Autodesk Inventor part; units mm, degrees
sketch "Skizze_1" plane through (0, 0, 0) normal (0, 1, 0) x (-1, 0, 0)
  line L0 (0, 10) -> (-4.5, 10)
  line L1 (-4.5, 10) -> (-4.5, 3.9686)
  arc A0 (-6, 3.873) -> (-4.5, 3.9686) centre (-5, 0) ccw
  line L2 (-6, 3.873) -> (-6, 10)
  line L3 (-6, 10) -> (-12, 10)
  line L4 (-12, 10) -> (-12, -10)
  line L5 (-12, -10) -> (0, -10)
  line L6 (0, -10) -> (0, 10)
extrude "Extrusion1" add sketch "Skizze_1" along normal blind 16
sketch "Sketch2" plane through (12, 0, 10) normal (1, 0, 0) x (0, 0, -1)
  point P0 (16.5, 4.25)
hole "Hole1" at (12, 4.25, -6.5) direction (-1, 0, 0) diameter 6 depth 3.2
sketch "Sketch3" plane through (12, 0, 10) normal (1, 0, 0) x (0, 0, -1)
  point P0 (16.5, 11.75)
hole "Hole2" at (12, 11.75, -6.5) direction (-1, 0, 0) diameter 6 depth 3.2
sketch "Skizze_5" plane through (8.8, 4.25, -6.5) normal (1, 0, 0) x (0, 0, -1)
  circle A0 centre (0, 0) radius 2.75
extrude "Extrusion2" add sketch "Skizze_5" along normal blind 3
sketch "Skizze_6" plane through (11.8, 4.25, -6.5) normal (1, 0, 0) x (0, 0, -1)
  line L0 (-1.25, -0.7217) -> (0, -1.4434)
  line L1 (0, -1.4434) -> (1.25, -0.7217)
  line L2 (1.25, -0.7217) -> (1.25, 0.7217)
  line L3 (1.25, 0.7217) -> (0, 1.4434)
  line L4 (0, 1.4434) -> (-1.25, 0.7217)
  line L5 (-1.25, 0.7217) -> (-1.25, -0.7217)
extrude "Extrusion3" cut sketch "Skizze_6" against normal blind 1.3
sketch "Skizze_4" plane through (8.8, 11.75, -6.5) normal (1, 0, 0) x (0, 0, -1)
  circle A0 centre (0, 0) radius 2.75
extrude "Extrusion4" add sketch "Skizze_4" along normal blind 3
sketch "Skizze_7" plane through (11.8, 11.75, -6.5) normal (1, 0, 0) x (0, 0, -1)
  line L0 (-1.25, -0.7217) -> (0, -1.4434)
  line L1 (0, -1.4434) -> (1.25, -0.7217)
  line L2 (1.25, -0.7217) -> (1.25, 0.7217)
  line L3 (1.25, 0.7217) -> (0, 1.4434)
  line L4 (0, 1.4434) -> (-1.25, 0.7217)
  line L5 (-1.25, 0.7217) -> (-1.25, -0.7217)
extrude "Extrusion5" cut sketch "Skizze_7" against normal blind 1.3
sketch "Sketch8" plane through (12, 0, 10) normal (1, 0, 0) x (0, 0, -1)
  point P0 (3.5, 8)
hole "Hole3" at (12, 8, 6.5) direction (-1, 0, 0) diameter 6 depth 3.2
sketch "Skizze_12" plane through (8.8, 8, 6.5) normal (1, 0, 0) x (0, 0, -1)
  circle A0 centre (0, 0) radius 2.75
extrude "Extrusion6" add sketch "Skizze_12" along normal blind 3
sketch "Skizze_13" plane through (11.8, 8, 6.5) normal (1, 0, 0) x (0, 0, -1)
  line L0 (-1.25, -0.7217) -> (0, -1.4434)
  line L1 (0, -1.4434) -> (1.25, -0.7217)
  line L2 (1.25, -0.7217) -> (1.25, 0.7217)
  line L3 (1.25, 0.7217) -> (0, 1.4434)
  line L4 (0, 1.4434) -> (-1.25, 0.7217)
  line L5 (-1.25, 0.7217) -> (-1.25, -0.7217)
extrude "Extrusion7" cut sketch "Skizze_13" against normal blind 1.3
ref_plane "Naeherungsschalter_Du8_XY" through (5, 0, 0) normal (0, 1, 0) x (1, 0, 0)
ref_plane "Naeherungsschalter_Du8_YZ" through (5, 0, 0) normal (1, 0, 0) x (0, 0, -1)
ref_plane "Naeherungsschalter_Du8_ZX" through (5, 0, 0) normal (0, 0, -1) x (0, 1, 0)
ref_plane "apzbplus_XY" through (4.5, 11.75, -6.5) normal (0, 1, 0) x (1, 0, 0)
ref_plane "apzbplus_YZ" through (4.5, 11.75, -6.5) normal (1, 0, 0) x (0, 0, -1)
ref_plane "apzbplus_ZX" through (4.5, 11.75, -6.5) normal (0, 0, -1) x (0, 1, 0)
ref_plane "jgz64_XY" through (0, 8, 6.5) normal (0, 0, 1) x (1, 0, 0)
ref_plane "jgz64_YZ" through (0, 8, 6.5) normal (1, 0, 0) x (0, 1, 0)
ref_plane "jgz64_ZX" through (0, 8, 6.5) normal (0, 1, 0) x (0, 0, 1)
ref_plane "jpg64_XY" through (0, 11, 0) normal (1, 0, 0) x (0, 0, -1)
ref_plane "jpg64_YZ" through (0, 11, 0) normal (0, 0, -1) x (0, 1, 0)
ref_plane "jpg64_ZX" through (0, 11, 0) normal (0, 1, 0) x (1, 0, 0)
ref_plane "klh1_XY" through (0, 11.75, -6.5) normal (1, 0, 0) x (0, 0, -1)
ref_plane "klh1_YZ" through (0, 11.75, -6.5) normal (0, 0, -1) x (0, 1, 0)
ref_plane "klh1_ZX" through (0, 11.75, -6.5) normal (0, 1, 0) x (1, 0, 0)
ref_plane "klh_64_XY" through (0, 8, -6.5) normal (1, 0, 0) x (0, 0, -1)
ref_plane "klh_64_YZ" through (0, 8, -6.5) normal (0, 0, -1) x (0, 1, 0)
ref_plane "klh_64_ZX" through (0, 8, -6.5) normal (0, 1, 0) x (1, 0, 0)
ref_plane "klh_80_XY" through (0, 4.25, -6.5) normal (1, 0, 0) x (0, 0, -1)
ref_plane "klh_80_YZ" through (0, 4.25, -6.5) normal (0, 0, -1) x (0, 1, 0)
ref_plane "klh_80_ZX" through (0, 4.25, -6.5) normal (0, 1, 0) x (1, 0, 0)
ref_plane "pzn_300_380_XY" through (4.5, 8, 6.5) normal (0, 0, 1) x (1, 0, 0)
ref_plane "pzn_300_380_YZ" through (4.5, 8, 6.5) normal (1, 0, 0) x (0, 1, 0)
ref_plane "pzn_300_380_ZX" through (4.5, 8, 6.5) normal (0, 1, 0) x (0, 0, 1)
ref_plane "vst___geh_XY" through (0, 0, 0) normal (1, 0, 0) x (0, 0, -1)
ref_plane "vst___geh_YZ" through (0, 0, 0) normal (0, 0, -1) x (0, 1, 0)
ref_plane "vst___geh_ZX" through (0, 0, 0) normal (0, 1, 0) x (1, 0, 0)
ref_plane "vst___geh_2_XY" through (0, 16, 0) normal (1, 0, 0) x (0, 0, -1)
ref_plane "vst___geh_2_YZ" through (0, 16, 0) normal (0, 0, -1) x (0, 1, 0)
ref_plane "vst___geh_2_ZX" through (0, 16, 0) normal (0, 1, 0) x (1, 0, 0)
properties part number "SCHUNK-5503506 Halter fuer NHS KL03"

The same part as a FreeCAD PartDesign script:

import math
import FreeCAD as App
import Part
import Sketcher
from FreeCAD import Vector
Q = App.Units.Quantity

doc = App.newDocument("Part")
body = doc.addObject("PartDesign::Body", "Body")

sketch1 = body.newObject("Sketcher::SketchObject", "Sketch")
sketch1.AttachmentSupport = (doc.getObject("XZ_Plane"), [""])
sketch1.MapMode = "FlatFace"
sketch1.addGeometry([
    Part.LineSegment(Vector(0, -10, 0), Vector(0, 10, 0)),
    Part.LineSegment(Vector(0, 10, 0), Vector(4.5, 10, 0)),
    Part.LineSegment(Vector(4.5, 10, 0), Vector(4.5, 4, 0)),
    Part.ArcOfCircle(Part.Circle(Vector(5, 0, 0), Vector(0, 0, 1), 4), math.radians(97), math.radians(436)),
    Part.LineSegment(Vector(6, 3.9, 0), Vector(6, 10, 0)),
    Part.LineSegment(Vector(6, 10, 0), Vector(12, 10, 0)),
    Part.LineSegment(Vector(12, 10, 0), Vector(12, -10, 0)),
    Part.LineSegment(Vector(12, -10, 0), Vector(0, -10, 0)),
], False)
sketch1.addConstraint([
    Sketcher.Constraint("Coincident", 0, 2, 1, 1),
    Sketcher.Constraint("Coincident", 1, 2, 2, 1),
    Sketcher.Constraint("Coincident", 2, 2, 3, 1),
    Sketcher.Constraint("Coincident", 3, 2, 4, 1),
    Sketcher.Constraint("Coincident", 4, 2, 5, 1),
    Sketcher.Constraint("Coincident", 5, 2, 6, 1),
    Sketcher.Constraint("Coincident", 6, 2, 7, 1),
    Sketcher.Constraint("Coincident", 7, 2, 0, 1),
    Sketcher.Constraint("Vertical", 0),
    Sketcher.Constraint("Horizontal", 1),
    Sketcher.Constraint("Vertical", 2),
    Sketcher.Constraint("Vertical", 4),
    Sketcher.Constraint("Horizontal", 5),
    Sketcher.Constraint("Vertical", 6),
    Sketcher.Constraint("Horizontal", 7),
    Sketcher.Constraint("Symmetric", 0, 2, 7, 2, -1, 1),
    Sketcher.Constraint("PointOnObject", 3, 3, -1),
    Sketcher.Constraint("Horizontal", 1, 2, 4, 2),
    Sketcher.Constraint("Radius", 3, 4.0),
    Sketcher.Constraint("DistanceX", 5, 1, 5, 2, 6.0),
    Sketcher.Constraint("DistanceX", 7, 2, 7, 1, 12.0),
    Sketcher.Constraint("DistanceY", 0, 1, 0, 2, 20.0),
    Sketcher.Constraint("DistanceX", 1, 1, 1, 2, 4.5),
    Sketcher.Constraint("DistanceX", -1, 1, 3, 3, 5.0),
])
pad1 = body.newObject("PartDesign::Pad", "Pad")
pad1.Profile = sketch1
pad1.Length = 16
pad1.Reversed = True

sketch2 = body.newObject("Sketcher::SketchObject", "Sketch001")
sketch2.AttachmentSupport = (doc.getObject("YZ_Plane"), [""])
sketch2.MapMode = "FlatFace"
sketch2.AttachmentOffset = App.Placement(Vector(0, 0, 12), App.Rotation())
sketch2.addGeometry(Part.Circle(Vector(4.2, -6.5, 0), Vector(0, 0, 1), 3), False)
sketch2.addConstraint([
    Sketcher.Constraint("Diameter", 0, 6.0),
    Sketcher.Constraint("DistanceY", 0, 3, -1, 1, 6.5),
    Sketcher.Constraint("DistanceX", -1, 1, 0, 3, 4.25),
])
doc.recompute()
hole = body.newObject("PartDesign::Hole", "Hole")
hole.Profile = sketch2
hole.ThreadType = "None"
hole.Diameter = 6
hole.DepthType = "Dimension"
hole.Depth = 3.2
hole.DrillPoint = "Flat"

sketch3 = body.newObject("Sketcher::SketchObject", "Sketch002")
sketch3.AttachmentSupport = (doc.getObject("YZ_Plane"), [""])
sketch3.MapMode = "FlatFace"
sketch3.AttachmentOffset = App.Placement(Vector(0, 0, 12), App.Rotation())
sketch3.addGeometry(Part.Circle(Vector(11.8, -6.5, 0), Vector(0, 0, 1), 3), False)
sketch3.addConstraint([
    Sketcher.Constraint("Diameter", 0, 6.0),
    Sketcher.Constraint("DistanceY", 0, 3, -1, 1, 6.5),
    Sketcher.Constraint("DistanceX", -1, 1, 0, 3, 11.75),
])
doc.recompute()
hole2 = body.newObject("PartDesign::Hole", "Hole001")
hole2.Profile = sketch3
hole2.ThreadType = "None"
hole2.Diameter = 6
hole2.DepthType = "Dimension"
hole2.Depth = 3.2
hole2.DrillPoint = "Flat"

sketch4 = body.newObject("Sketcher::SketchObject", "Sketch003")
sketch4.AttachmentSupport = (doc.getObject("YZ_Plane"), [""])
sketch4.MapMode = "FlatFace"
sketch4.AttachmentOffset = App.Placement(Vector(0, 0, 8.8), App.Rotation())
sketch4.addGeometry(Part.Circle(Vector(4.2, -6.5, 0), Vector(0, 0, 1), 2.8), False)
sketch4.addConstraint([
    Sketcher.Constraint("Diameter", 0, 5.5),
    Sketcher.Constraint("DistanceY", 0, 3, -1, 1, 6.5),
    Sketcher.Constraint("DistanceX", -1, 1, 0, 3, 4.25),
])
pad2 = body.newObject("PartDesign::Pad", "Pad001")
pad2.Profile = sketch4
pad2.Length = 3

sketch5 = body.newObject("Sketcher::SketchObject", "Sketch004")
sketch5.AttachmentSupport = (doc.getObject("YZ_Plane"), [""])
sketch5.MapMode = "FlatFace"
sketch5.AttachmentOffset = App.Placement(Vector(0, 0, 11.8), App.Rotation())
sketch5.addGeometry([
    Part.LineSegment(Vector(5, -5.2, 0), Vector(3.5, -5.2, 0)),
    Part.LineSegment(Vector(3.5, -5.2, 0), Vector(2.8, -6.5, 0)),
    Part.LineSegment(Vector(2.8, -6.5, 0), Vector(3.5, -7.8, 0)),
    Part.LineSegment(Vector(3.5, -7.8, 0), Vector(5, -7.8, 0)),
    Part.LineSegment(Vector(5, -7.8, 0), Vector(5.7, -6.5, 0)),
    Part.LineSegment(Vector(5.7, -6.5, 0), Vector(5, -5.2, 0)),
], False)
sketch5.addConstraint([
    Sketcher.Constraint("Coincident", 0, 2, 1, 1),
    Sketcher.Constraint("Coincident", 1, 2, 2, 1),
    Sketcher.Constraint("Coincident", 2, 2, 3, 1),
    Sketcher.Constraint("Coincident", 3, 2, 4, 1),
    Sketcher.Constraint("Coincident", 4, 2, 5, 1),
    Sketcher.Constraint("Coincident", 5, 2, 0, 1),
    Sketcher.Constraint("Horizontal", 0),
    Sketcher.Constraint("Horizontal", 3),
    Sketcher.Constraint("Parallel", 1, 4),
    Sketcher.Constraint("Parallel", 2, 5),
    Sketcher.Constraint("Horizontal", 1, 2, 4, 2),
    Sketcher.Constraint("Vertical", 0, 2, 2, 2),
    Sketcher.Constraint("Vertical", 3, 2, 5, 2),
    Sketcher.Constraint("Angle", 1, Q("-120.0004 deg")),
    Sketcher.Constraint("DistanceY", 1, 2, -1, 1, 6.5),
    Sketcher.Constraint("DistanceY", 2, 2, 0, 2, 2.5),
    Sketcher.Constraint("DistanceX", 0, 2, 0, 1, 1.4434),
    Sketcher.Constraint("DistanceX", -1, 1, 0, 2, 3.5283),
])
pocket1 = body.newObject("PartDesign::Pocket", "Pocket")
pocket1.Profile = sketch5
pocket1.Length = 1.3

sketch6 = body.newObject("Sketcher::SketchObject", "Sketch005")
sketch6.AttachmentSupport = (doc.getObject("YZ_Plane"), [""])
sketch6.MapMode = "FlatFace"
sketch6.AttachmentOffset = App.Placement(Vector(0, 0, 8.8), App.Rotation())
sketch6.addGeometry(Part.Circle(Vector(11.8, -6.5, 0), Vector(0, 0, 1), 2.8), False)
sketch6.addConstraint([
    Sketcher.Constraint("Diameter", 0, 5.5),
    Sketcher.Constraint("DistanceY", 0, 3, -1, 1, 6.5),
    Sketcher.Constraint("DistanceX", -1, 1, 0, 3, 11.75),
])
pad3 = body.newObject("PartDesign::Pad", "Pad002")
pad3.Profile = sketch6
pad3.Length = 3

sketch7 = body.newObject("Sketcher::SketchObject", "Sketch006")
sketch7.AttachmentSupport = (doc.getObject("YZ_Plane"), [""])
sketch7.MapMode = "FlatFace"
sketch7.AttachmentOffset = App.Placement(Vector(0, 0, 11.8), App.Rotation())
sketch7.addGeometry([
    Part.LineSegment(Vector(12.5, -5.2, 0), Vector(11, -5.2, 0)),
    Part.LineSegment(Vector(11, -5.2, 0), Vector(10.3, -6.5, 0)),
    Part.LineSegment(Vector(10.3, -6.5, 0), Vector(11, -7.8, 0)),
    Part.LineSegment(Vector(11, -7.8, 0), Vector(12.5, -7.8, 0)),
    Part.LineSegment(Vector(12.5, -7.8, 0), Vector(13.2, -6.5, 0)),
    Part.LineSegment(Vector(13.2, -6.5, 0), Vector(12.5, -5.2, 0)),
], False)
sketch7.addConstraint([
    Sketcher.Constraint("Coincident", 0, 2, 1, 1),
    Sketcher.Constraint("Coincident", 1, 2, 2, 1),
    Sketcher.Constraint("Coincident", 2, 2, 3, 1),
    Sketcher.Constraint("Coincident", 3, 2, 4, 1),
    Sketcher.Constraint("Coincident", 4, 2, 5, 1),
    Sketcher.Constraint("Coincident", 5, 2, 0, 1),
    Sketcher.Constraint("Horizontal", 0),
    Sketcher.Constraint("Horizontal", 3),
    Sketcher.Constraint("Parallel", 1, 4),
    Sketcher.Constraint("Parallel", 2, 5),
    Sketcher.Constraint("Horizontal", 1, 2, 4, 2),
    Sketcher.Constraint("Vertical", 0, 2, 2, 2),
    Sketcher.Constraint("Vertical", 3, 2, 5, 2),
    Sketcher.Constraint("Angle", 1, Q("-120.0004 deg")),
    Sketcher.Constraint("DistanceY", 1, 2, -1, 1, 6.5),
    Sketcher.Constraint("DistanceY", 2, 2, 0, 2, 2.5),
    Sketcher.Constraint("DistanceX", 0, 2, 0, 1, 1.4434),
    Sketcher.Constraint("DistanceX", -1, 1, 0, 2, 11.0283),
])
pocket2 = body.newObject("PartDesign::Pocket", "Pocket001")
pocket2.Profile = sketch7
pocket2.Length = 1.3

sketch8 = body.newObject("Sketcher::SketchObject", "Sketch007")
sketch8.AttachmentSupport = (doc.getObject("YZ_Plane"), [""])
sketch8.MapMode = "FlatFace"
sketch8.AttachmentOffset = App.Placement(Vector(0, 0, 12), App.Rotation())
sketch8.addGeometry(Part.Circle(Vector(8, 6.5, 0), Vector(0, 0, 1), 3), False)
sketch8.addConstraint([
    Sketcher.Constraint("Diameter", 0, 6.0),
    Sketcher.Constraint("DistanceX", -1, 1, 0, 3, 8.0),
    Sketcher.Constraint("DistanceY", -1, 1, 0, 3, 6.5),
])
doc.recompute()
hole3 = body.newObject("PartDesign::Hole", "Hole002")
hole3.Profile = sketch8
hole3.ThreadType = "None"
hole3.Diameter = 6
hole3.DepthType = "Dimension"
hole3.Depth = 3.2
hole3.DrillPoint = "Flat"

sketch9 = body.newObject("Sketcher::SketchObject", "Sketch008")
sketch9.AttachmentSupport = (doc.getObject("YZ_Plane"), [""])
sketch9.MapMode = "FlatFace"
sketch9.AttachmentOffset = App.Placement(Vector(0, 0, 8.8), App.Rotation())
sketch9.addGeometry(Part.Circle(Vector(8, 6.5, 0), Vector(0, 0, 1), 2.8), False)
sketch9.addConstraint([
    Sketcher.Constraint("Diameter", 0, 5.5),
    Sketcher.Constraint("DistanceX", -1, 1, 0, 3, 8.0),
    Sketcher.Constraint("DistanceY", -1, 1, 0, 3, 6.5),
])
pad4 = body.newObject("PartDesign::Pad", "Pad003")
pad4.Profile = sketch9
pad4.Length = 3

sketch10 = body.newObject("Sketcher::SketchObject", "Sketch009")
sketch10.AttachmentSupport = (doc.getObject("YZ_Plane"), [""])
sketch10.MapMode = "FlatFace"
sketch10.AttachmentOffset = App.Placement(Vector(0, 0, 11.8), App.Rotation())
sketch10.addGeometry([
    Part.LineSegment(Vector(8.7, 7.8, 0), Vector(7.3, 7.8, 0)),
    Part.LineSegment(Vector(7.3, 7.8, 0), Vector(6.6, 6.5, 0)),
    Part.LineSegment(Vector(6.6, 6.5, 0), Vector(7.3, 5.2, 0)),
    Part.LineSegment(Vector(7.3, 5.2, 0), Vector(8.7, 5.2, 0)),
    Part.LineSegment(Vector(8.7, 5.2, 0), Vector(9.4, 6.5, 0)),
    Part.LineSegment(Vector(9.4, 6.5, 0), Vector(8.7, 7.8, 0)),
], False)
sketch10.addConstraint([
    Sketcher.Constraint("Coincident", 0, 2, 1, 1),
    Sketcher.Constraint("Coincident", 1, 2, 2, 1),
    Sketcher.Constraint("Coincident", 2, 2, 3, 1),
    Sketcher.Constraint("Coincident", 3, 2, 4, 1),
    Sketcher.Constraint("Coincident", 4, 2, 5, 1),
    Sketcher.Constraint("Coincident", 5, 2, 0, 1),
    Sketcher.Constraint("Horizontal", 0),
    Sketcher.Constraint("Horizontal", 3),
    Sketcher.Constraint("Parallel", 1, 4),
    Sketcher.Constraint("Parallel", 2, 5),
    Sketcher.Constraint("Horizontal", 1, 2, 4, 2),
    Sketcher.Constraint("Vertical", 0, 2, 2, 2),
    Sketcher.Constraint("Vertical", 3, 2, 5, 2),
    Sketcher.Constraint("Angle", 1, Q("-120.0004 deg")),
    Sketcher.Constraint("DistanceY", -1, 1, 1, 2, 6.5),
    Sketcher.Constraint("DistanceY", 2, 2, 0, 2, 2.5),
    Sketcher.Constraint("DistanceX", 0, 2, 0, 1, 1.4434),
    Sketcher.Constraint("DistanceX", -1, 1, 0, 2, 7.2783),
])
pocket3 = body.newObject("PartDesign::Pocket", "Pocket002")
pocket3.Profile = sketch10
pocket3.Length = 1.3

doc.recompute()
